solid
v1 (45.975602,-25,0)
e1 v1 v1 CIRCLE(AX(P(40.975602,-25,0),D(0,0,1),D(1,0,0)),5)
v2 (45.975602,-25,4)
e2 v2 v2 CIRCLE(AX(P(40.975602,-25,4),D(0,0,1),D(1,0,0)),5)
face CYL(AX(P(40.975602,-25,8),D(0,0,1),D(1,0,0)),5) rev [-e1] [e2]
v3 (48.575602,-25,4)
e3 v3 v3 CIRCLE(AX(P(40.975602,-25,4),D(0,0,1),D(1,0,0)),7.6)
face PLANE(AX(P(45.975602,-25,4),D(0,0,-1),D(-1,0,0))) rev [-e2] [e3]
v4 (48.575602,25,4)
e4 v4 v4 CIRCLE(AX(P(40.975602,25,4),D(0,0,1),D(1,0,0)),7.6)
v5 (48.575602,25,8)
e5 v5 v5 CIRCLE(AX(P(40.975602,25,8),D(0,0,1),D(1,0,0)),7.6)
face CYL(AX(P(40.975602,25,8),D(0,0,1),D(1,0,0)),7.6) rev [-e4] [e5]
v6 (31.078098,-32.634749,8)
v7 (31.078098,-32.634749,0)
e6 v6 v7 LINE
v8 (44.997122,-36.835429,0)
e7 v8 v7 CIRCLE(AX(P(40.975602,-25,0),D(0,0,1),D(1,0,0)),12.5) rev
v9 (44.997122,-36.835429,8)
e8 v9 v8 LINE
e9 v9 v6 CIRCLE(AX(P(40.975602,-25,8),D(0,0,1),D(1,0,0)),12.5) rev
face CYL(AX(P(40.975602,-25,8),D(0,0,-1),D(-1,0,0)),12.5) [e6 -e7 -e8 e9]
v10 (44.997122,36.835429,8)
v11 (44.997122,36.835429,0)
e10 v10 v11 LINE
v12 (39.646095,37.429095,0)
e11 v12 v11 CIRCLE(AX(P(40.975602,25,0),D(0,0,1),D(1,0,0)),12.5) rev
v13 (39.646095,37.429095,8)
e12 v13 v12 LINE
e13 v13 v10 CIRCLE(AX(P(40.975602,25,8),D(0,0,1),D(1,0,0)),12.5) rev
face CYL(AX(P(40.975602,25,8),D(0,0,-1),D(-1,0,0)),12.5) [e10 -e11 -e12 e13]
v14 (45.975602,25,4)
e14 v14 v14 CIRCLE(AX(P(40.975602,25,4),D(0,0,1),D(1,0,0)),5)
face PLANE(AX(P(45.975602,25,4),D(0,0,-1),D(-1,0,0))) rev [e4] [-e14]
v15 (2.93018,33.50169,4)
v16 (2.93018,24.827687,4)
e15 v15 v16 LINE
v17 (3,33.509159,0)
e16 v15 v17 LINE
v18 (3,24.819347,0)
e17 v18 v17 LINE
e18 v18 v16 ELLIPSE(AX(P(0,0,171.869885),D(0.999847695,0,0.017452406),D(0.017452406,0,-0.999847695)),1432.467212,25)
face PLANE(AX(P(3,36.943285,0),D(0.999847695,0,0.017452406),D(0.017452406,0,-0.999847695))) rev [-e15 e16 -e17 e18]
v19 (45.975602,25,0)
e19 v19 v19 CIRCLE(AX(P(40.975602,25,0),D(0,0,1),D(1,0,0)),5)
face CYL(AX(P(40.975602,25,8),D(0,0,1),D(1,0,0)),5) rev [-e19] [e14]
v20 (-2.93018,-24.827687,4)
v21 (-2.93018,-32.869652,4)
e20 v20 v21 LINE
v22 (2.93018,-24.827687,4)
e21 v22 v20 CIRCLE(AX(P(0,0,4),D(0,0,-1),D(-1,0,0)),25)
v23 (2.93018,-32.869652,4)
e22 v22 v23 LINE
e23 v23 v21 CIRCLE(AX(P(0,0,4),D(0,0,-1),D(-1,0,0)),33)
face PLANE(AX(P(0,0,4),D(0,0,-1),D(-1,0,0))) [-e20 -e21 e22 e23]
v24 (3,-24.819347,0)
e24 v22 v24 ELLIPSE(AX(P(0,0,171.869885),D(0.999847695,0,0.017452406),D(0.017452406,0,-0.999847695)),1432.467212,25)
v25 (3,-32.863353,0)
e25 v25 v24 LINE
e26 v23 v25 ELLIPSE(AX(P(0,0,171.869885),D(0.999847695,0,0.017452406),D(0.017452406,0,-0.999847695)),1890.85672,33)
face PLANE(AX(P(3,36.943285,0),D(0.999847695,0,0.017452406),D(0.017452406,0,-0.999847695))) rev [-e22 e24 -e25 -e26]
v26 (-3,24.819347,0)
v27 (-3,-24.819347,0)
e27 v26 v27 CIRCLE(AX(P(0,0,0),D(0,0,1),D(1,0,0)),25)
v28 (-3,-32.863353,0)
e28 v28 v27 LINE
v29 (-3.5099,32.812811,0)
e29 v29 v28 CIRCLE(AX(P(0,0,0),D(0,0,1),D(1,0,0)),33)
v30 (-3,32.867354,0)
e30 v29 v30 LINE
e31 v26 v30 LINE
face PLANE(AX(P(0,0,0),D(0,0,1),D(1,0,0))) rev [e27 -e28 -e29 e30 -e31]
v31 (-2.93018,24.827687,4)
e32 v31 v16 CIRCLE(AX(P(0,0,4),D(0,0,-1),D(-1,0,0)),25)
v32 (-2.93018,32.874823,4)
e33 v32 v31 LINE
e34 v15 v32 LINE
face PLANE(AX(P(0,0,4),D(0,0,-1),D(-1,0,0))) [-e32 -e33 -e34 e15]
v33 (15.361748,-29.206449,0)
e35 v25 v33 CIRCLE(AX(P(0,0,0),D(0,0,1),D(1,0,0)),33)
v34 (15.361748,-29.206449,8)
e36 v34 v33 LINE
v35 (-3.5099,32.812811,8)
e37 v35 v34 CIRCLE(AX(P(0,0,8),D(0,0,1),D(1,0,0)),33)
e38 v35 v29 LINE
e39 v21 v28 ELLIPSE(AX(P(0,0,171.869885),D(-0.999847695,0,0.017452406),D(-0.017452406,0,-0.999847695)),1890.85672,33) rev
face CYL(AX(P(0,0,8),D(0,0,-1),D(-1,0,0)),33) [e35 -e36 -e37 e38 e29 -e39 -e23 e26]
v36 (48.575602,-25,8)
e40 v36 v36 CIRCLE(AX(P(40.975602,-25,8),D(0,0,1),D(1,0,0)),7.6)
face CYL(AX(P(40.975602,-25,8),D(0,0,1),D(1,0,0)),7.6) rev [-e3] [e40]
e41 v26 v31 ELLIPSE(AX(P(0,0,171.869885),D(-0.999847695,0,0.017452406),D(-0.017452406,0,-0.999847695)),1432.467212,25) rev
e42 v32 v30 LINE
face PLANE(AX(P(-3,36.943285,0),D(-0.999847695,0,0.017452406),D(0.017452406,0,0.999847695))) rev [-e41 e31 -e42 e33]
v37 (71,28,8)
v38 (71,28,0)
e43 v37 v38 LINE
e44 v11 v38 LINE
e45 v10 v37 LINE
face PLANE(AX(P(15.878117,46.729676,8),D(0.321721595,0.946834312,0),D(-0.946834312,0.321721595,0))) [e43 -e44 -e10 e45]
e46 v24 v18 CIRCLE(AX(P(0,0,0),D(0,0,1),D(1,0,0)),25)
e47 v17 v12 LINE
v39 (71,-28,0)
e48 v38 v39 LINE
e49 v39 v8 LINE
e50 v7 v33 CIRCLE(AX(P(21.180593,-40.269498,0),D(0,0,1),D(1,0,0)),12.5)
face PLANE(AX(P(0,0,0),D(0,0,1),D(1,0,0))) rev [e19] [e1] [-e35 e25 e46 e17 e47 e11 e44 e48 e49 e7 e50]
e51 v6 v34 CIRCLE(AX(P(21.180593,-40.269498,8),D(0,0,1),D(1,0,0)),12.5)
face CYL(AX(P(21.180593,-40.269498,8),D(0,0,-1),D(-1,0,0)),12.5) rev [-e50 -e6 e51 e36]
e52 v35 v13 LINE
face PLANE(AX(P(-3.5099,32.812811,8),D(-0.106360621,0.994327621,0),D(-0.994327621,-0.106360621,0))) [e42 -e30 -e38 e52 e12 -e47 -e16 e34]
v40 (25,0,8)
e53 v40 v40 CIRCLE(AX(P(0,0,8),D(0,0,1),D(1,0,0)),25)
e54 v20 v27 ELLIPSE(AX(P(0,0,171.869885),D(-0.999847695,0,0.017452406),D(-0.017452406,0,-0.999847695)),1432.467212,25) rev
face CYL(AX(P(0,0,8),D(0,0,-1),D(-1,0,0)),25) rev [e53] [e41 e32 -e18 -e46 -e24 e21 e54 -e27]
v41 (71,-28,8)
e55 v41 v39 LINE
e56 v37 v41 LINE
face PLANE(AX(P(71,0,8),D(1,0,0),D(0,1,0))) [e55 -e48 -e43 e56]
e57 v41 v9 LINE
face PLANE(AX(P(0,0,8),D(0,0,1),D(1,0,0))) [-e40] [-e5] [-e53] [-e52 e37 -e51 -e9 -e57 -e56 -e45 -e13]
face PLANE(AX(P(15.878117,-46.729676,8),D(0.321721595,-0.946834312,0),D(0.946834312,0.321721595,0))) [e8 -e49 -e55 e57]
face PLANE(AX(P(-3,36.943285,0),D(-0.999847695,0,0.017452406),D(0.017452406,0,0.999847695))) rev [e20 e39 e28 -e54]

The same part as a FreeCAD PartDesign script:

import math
import FreeCAD as App
import Part
import Sketcher
from FreeCAD import Vector
Q = App.Units.Quantity


def faces_at(feature, points):
    """Names of the faces that lie closest to the given points."""
    faces = feature.Shape.Faces
    near = lambda p: min(range(len(faces)), key=lambda i: faces[i].distToShape(Part.Vertex(*p))[0])
    return sorted({f"Face{near(p) + 1}" for p in points})

doc = App.newDocument("Part")
params = doc.addObject("Spreadsheet::Sheet", "Params")
for row, (alias, value) in enumerate([
    ("sketch1_diameter", "50 mm"),
    ("sketch1_radius", "33 mm"),
    ("sketch1_radius2", "12.5 mm"),
    ("sketch1_height", "56 mm"),
    ("pad1_length", "8 mm"),
    ("sketch2_width", "6 mm"),
    ("pad2_length", "4 mm"),
    ("draft_angle", "1 deg"),
    ("sketch3_diameter", "10 mm"),
    ("hole_diameter", "10 mm"),
    ("hole_cbore_diameter", "15.2 mm"),
    ("hole_cbore_depth", "4 mm"),
], start=1):
    params.set(f"A{row}", alias)
    params.set(f"B{row}", "=" + value)
    params.setAlias(f"B{row}", alias)

body = doc.addObject("PartDesign::Body", "Body")

# Sketch on XY plane
sketch1 = doc.addObject("Sketcher::SketchObject", "Sketch")
body.addObject(sketch1)
sketch1.AttachmentSupport = (doc.XY_Plane, [""])
sketch1.MapMode = "FlatFace"
sketch1.addGeometry([
    Part.ArcOfCircle(Part.Circle(Vector(0, 0, 0), Vector(0, 0, 1), 33), math.radians(96), math.radians(298)),  # 0
    Part.ArcOfCircle(Part.Circle(Vector(21, -40, 0), Vector(0, 0, 1), 12), math.radians(38), math.radians(118)),  # 1
    Part.ArcOfCircle(Part.Circle(Vector(41, -25, 0), Vector(0, 0, 1), 13), math.radians(-142), math.radians(-71)),  # 2
    Part.LineSegment(Vector(45, -37, 0), Vector(71, -28, 0)),  # 3
    Part.LineSegment(Vector(71, -28, 0), Vector(71, 28, 0)),  # 4
    Part.LineSegment(Vector(71, 28, 0), Vector(45, 37, 0)),  # 5
    Part.ArcOfCircle(Part.Circle(Vector(41, 25, 0), Vector(0, 0, 1), 12), math.radians(71), math.radians(96)),  # 6
    Part.LineSegment(Vector(40, 37, 0), Vector(-4, 33, 0)),  # 7
    Part.Circle(Vector(0, 0, 0), Vector(0, 0, 1), 25),  # 8
], False)
sketch1.addConstraint([
    Sketcher.Constraint("Tangent", 0, 2, 1, 2),
    Sketcher.Constraint("Tangent", 1, 1, 2, 1),
    Sketcher.Constraint("Tangent", 2, 2, 3, 1),
    Sketcher.Constraint("Coincident", 3, 2, 4, 1),
    Sketcher.Constraint("Coincident", 4, 2, 5, 1),
    Sketcher.Constraint("Tangent", 5, 2, 6, 1),
    Sketcher.Constraint("Tangent", 6, 2, 7, 1),
    Sketcher.Constraint("Tangent", 7, 2, 0, 1),
    Sketcher.Constraint("Vertical", 4),
    Sketcher.Constraint("Coincident", 0, 3, -1, 1),
    Sketcher.Constraint("Coincident", 8, 3, -1, 1),
    Sketcher.Constraint("Equal", 1, 2),
    Sketcher.Constraint("Equal", 2, 6),
    Sketcher.Constraint("Symmetric", 2, 3, 6, 3, -1),
    Sketcher.Constraint("Vertical", 2, 2, 5, 2),
    Sketcher.Constraint("Diameter", 8, Q("50 mm")),
    Sketcher.Constraint("Radius", 0, Q("33 mm")),
    Sketcher.Constraint("Radius", 1, Q("12.5 mm")),
    Sketcher.Constraint("DistanceY", 4, 1, 4, 2, Q("56 mm")),
    Sketcher.Constraint("DistanceY", 2, 3, -1, 1, Q("25 mm")),
    Sketcher.Constraint("DistanceX", -1, 1, 3, 2, Q("71 mm")),
    Sketcher.Constraint("DistanceY", 1, 3, -1, 1, Q("40.269498 mm")),
])
sketch1.setExpression("Constraints[15]", "Params.sketch1_diameter")
sketch1.setExpression("Constraints[16]", "Params.sketch1_radius")
sketch1.setExpression("Constraints[17]", "Params.sketch1_radius2")
sketch1.setExpression("Constraints[18]", "Params.sketch1_height")
pad1 = doc.addObject("PartDesign::Pad", "Pad")
body.addObject(pad1)
pad1.Profile = sketch1
pad1.setExpression("Length", "Params.pad1_length")
body2 = doc.addObject("PartDesign::Body", "Body001")

# Sketch on XY plane
sketch2 = doc.addObject("Sketcher::SketchObject", "Sketch001")
body2.addObject(sketch2)
sketch2.AttachmentSupport = (doc.getObject("XY_Plane001"), [""])
sketch2.MapMode = "FlatFace"
sketch2.addGeometry([
    Part.LineSegment(Vector(3, 37, 0), Vector(3, -38, 0)),
    Part.LineSegment(Vector(3, -38, 0), Vector(-3, -38, 0)),
    Part.LineSegment(Vector(-3, -38, 0), Vector(-3, 37, 0)),
    Part.LineSegment(Vector(-3, 37, 0), Vector(3, 37, 0)),
], False)
sketch2.addConstraint([
    Sketcher.Constraint("Coincident", 0, 2, 1, 1),
    Sketcher.Constraint("Coincident", 1, 2, 2, 1),
    Sketcher.Constraint("Coincident", 2, 2, 3, 1),
    Sketcher.Constraint("Coincident", 3, 2, 0, 1),
    Sketcher.Constraint("Vertical", 0),
    Sketcher.Constraint("Horizontal", 1),
    Sketcher.Constraint("Vertical", 2),
    Sketcher.Constraint("Horizontal", 3),
    Sketcher.Constraint("DistanceX", 1, 2, 1, 1, Q("6 mm")),
    Sketcher.Constraint("DistanceX", -1, 1, 0, 2, Q("3 mm")),
    Sketcher.Constraint("DistanceY", 0, 2, 0, 1, Q("75.065219 mm")),
    Sketcher.Constraint("DistanceY", 0, 2, -1, 1, Q("38.121934 mm")),
])
sketch2.setExpression("Constraints[8]", "Params.sketch2_width")
pad2 = doc.addObject("PartDesign::Pad", "Pad001")
body2.addObject(pad2)
pad2.Profile = sketch2
pad2.setExpression("Length", "Params.pad2_length")
doc.recompute()

draft = doc.addObject("PartDesign::Draft", "Draft")
body2.addObject(draft)
draft.Base = (pad2, faces_at(pad2, [
    (3, -0.589, 2),
    (0, -38.122, 2),
    (-3, -0.589, 2),
    (0, 36.943, 2),
]))
draft.NeutralPlane = (doc.getObject("XY_Plane001"), [""])
draft.setExpression("Angle", "Params.draft_angle")
draft.Reversed = False
doc.recompute()

boolean = doc.addObject("PartDesign::Boolean", "Boolean")
body.addObject(boolean)
boolean.Type = "Cut"
boolean.addObjects([body2])

# Sketch on XY plane
sketch3 = doc.addObject("Sketcher::SketchObject", "Sketch002")
body.addObject(sketch3)
sketch3.AttachmentSupport = (doc.XY_Plane, [""])
sketch3.MapMode = "FlatFace"
sketch3.AttachmentOffset = App.Placement(Vector(0, 0, 8), App.Rotation())
sketch3.addGeometry([
    Part.Circle(Vector(41, 25, 0), Vector(0, 0, 1), 5),
    Part.Circle(Vector(41, -25, 0), Vector(0, 0, 1), 5),
], False)
sketch3.addConstraint([
    Sketcher.Constraint("Equal", 0, 1),
    Sketcher.Constraint("Symmetric", 0, 3, 1, 3, -1),
    Sketcher.Constraint("Diameter", 0, Q("10 mm")),
    Sketcher.Constraint("DistanceY", -1, 1, 0, 3, Q("25 mm")),
    Sketcher.Constraint("DistanceX", -1, 1, 0, 3, Q("40.975602 mm")),
])
sketch3.setExpression("Constraints[2]", "Params.sketch3_diameter")
doc.recompute()
hole = doc.addObject("PartDesign::Hole", "Hole")
body.addObject(hole)
hole.Profile = sketch3
hole.ThreadType = "None"
hole.setExpression("Diameter", "Params.hole_diameter")
hole.DepthType = "ThroughAll"
hole.HoleCutType = "Counterbore"
hole.setExpression("HoleCutDiameter", "Params.hole_cbore_diameter")
hole.setExpression("HoleCutDepth", "Params.hole_cbore_depth")

doc.recompute()
